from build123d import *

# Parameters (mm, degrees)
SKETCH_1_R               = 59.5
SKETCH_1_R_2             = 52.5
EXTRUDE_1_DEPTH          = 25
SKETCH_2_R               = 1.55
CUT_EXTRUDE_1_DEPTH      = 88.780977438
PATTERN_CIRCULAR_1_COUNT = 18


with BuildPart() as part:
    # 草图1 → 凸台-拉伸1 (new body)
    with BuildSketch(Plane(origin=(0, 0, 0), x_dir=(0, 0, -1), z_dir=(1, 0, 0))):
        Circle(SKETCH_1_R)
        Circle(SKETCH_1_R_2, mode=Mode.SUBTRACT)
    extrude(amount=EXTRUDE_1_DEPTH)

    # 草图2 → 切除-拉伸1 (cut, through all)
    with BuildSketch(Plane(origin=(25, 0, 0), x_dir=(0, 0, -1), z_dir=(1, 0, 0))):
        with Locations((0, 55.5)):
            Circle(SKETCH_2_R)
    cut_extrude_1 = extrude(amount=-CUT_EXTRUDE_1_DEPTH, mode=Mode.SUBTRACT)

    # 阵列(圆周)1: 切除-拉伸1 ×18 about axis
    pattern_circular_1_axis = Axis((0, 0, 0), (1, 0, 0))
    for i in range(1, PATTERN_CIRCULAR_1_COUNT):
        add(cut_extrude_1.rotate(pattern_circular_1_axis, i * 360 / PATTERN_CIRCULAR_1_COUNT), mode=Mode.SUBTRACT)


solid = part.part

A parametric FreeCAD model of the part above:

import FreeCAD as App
import Part
import Sketcher
Q = App.Units.Quantity

doc = App.newDocument("Part")
body = doc.addObject("PartDesign::Body", "Body")

# Sketch on YZ plane
sketch1 = body.newObject("Sketcher::SketchObject", "Sketch")
sketch1.AttachmentSupport = (doc.getObject("YZ_Plane"), [""])
sketch1.MapMode = "FlatFace"
sketch1.addGeometry(Part.Circle(App.Vector(0, 0, 0), App.Vector(0, 0, 1), 60), False)
sketch1.addGeometry(Part.Circle(App.Vector(0, 0, 0), App.Vector(0, 0, 1), 52), False)
sketch1.addConstraint(Sketcher.Constraint("Coincident", 0, 3, -1, 1))
sketch1.addConstraint(Sketcher.Constraint("Coincident", 1, 3, -1, 1))
sketch1.addConstraint(Sketcher.Constraint("Diameter", 0, Q("119 mm")))
sketch1.addConstraint(Sketcher.Constraint("Diameter", 1, Q("105 mm")))
pad1 = body.newObject("PartDesign::Pad", "Pad")
pad1.Profile = sketch1
pad1.Length = 25

# Sketch on YZ plane
sketch2 = body.newObject("Sketcher::SketchObject", "Sketch001")
sketch2.AttachmentSupport = (doc.getObject("YZ_Plane"), [""])
sketch2.MapMode = "FlatFace"
sketch2.AttachmentOffset = App.Placement(App.Vector(0, 0, 25), App.Rotation())
sketch2.addGeometry(Part.Circle(App.Vector(55.5, 0, 0), App.Vector(0, 0, 1), 1.6), False)
sketch2.addConstraint(Sketcher.Constraint("PointOnObject", 0, 3, -1))
sketch2.addConstraint(Sketcher.Constraint("Diameter", 0, Q("3.1 mm")))
sketch2.addConstraint(Sketcher.Constraint("DistanceX", -1, 1, 0, 3, Q("55.5 mm")))
pocket1 = body.newObject("PartDesign::Pocket", "Pocket")
pocket1.Profile = sketch2
pocket1.Type = "ThroughAll"
doc.recompute()

polarpattern = body.newObject("PartDesign::PolarPattern", "PolarPattern")
polarpattern.Originals = [pocket1]
polarpattern.Axis = (doc.getObject("X_Axis"), [""])
polarpattern.Angle = 360
polarpattern.Occurrences = 18
body.Tip = polarpattern

doc.recompute()
